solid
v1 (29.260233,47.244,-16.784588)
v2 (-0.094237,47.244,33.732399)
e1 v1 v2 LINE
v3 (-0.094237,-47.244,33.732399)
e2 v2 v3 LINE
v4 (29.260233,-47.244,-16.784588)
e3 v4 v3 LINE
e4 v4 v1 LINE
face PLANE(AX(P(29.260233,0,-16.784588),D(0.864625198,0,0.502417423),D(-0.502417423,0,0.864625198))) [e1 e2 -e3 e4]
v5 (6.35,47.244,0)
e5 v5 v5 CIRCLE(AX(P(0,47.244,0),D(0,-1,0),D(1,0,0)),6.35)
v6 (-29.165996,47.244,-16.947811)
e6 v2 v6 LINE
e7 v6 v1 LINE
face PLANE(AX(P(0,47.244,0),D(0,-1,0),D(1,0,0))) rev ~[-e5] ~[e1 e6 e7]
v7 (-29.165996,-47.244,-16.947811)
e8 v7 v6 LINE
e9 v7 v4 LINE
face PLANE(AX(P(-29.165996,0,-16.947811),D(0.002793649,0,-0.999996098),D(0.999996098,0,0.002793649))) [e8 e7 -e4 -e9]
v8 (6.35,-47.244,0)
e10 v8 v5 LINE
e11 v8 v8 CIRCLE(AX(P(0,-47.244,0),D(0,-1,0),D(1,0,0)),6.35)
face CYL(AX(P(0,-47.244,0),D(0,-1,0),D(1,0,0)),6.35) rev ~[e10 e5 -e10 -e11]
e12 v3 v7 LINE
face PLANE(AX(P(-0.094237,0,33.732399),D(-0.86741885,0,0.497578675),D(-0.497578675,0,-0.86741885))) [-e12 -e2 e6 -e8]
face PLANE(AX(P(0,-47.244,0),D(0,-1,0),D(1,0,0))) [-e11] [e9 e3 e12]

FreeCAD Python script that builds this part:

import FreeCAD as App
import Part
import Sketcher
Q = App.Units.Quantity


def add_polygon(sketch, points):
    """Adds a closed chain of lines whose ends are joined by coincident constraints."""
    first, n = sketch.GeometryCount, len(points)
    for a, b in zip(points, points[1:] + points[:1]):
        sketch.addGeometry(Part.LineSegment(App.Vector(*a, 0), App.Vector(*b, 0)), False)
    for i in range(n):
        sketch.addConstraint(Sketcher.Constraint("Coincident", first + i, 2, first + (i + 1) % n, 1))

doc = App.newDocument("Part")
params = doc.addObject("Spreadsheet::Sheet", "Params")
for row, (alias, value) in enumerate([
    ("pad1_length", "3.72 in"),
    ("sketch2_diameter", "0.5 in"),
], start=1):
    params.set(f"A{row}", alias)
    params.set(f"B{row}", "=" + value)
    params.setAlias(f"B{row}", alias)

body = doc.addObject("PartDesign::Body", "Body")

sketch1 = doc.addObject("Sketcher::SketchObject", "Sketch")
body.addObject(sketch1)
sketch1.AttachmentSupport = (doc.XZ_Plane, [""])
sketch1.MapMode = "FlatFace"
add_polygon(sketch1, [(29, -17), (0, 34), (-29, -17)])
sketch1.addConstraint([
    Sketcher.Constraint("Equal", 0, 1),
    Sketcher.Constraint("Equal", 1, 2),
    Sketcher.Constraint("DistanceY", -1, 1, 0, 2, Q("33.732399 mm")),
    Sketcher.Constraint("DistanceY", 1, 2, -1, 1, Q("16.947811 mm")),
    Sketcher.Constraint("DistanceX", 1, 2, 0, 2, Q("29.071759 mm")),
    Sketcher.Constraint("DistanceX", 0, 2, -1, 1, Q("0.094237 mm")),
])
pad1 = doc.addObject("PartDesign::Pad", "Pad")
body.addObject(pad1)
pad1.Profile = sketch1
pad1.setExpression("Length", "Params.pad1_length")
pad1.Midplane = True

sketch2 = doc.addObject("Sketcher::SketchObject", "Sketch001")
body.addObject(sketch2)
sketch2.AttachmentSupport = (doc.XZ_Plane, [""])
sketch2.MapMode = "FlatFace"
sketch2.AttachmentOffset = App.Placement(App.Vector(0, 0, 1.86 * 25.4), App.Rotation())
sketch2.addGeometry(Part.Circle(App.Vector(0, 0, 0), App.Vector(0, 0, 1), 6), False)
sketch2.addConstraint([
    Sketcher.Constraint("Coincident", 0, 3, -1, 1),
    Sketcher.Constraint("Diameter", 0, Q("0.5 in")),
])
sketch2.setExpression("Constraints[1]", "Params.sketch2_diameter")
pocket1 = doc.addObject("PartDesign::Pocket", "Pocket")
body.addObject(pocket1)
pocket1.Profile = sketch2
pocket1.Type = "ThroughAll"

doc.recompute()
